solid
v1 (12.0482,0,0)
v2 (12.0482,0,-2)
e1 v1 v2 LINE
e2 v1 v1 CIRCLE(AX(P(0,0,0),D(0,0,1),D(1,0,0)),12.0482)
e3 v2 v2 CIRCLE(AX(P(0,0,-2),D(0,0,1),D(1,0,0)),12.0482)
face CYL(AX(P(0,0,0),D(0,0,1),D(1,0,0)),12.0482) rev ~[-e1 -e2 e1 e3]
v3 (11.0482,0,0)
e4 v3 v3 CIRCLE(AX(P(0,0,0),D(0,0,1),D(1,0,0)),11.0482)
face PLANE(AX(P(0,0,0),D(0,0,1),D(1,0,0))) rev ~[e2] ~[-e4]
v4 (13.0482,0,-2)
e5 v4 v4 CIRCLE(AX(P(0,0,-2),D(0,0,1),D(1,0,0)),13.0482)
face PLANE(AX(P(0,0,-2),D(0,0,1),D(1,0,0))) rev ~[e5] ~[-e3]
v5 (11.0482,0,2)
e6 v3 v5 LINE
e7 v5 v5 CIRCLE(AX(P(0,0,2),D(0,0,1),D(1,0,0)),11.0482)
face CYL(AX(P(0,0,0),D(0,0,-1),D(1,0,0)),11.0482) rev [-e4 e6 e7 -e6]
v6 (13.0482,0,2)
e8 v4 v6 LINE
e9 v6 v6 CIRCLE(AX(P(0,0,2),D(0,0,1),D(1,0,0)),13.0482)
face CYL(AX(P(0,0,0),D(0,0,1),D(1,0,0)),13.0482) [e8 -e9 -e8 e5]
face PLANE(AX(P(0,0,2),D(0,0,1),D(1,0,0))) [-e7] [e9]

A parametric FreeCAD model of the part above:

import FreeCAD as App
import Part
import Sketcher

V = App.Vector

doc = App.newDocument("Part")
body = doc.addObject("PartDesign::Body", "Body")

# Sketch on XY plane
sketch1 = doc.addObject("Sketcher::SketchObject", "Sketch")
body.addObject(sketch1)
sketch1.AttachmentSupport = (doc.XY_Plane, [""])
sketch1.MapMode = "FlatFace"
sketch1.addGeometry([
    Part.Circle(V(0, 0, 0), V(0, 0, 1), 13),
    Part.Circle(V(0, 0, 0), V(0, 0, 1), 12),
], False)
sketch1.addConstraint([
    Sketcher.Constraint("Coincident", 0, 3, -1, 1),
    Sketcher.Constraint("Coincident", 1, 3, -1, 1),
    Sketcher.Constraint("Diameter", 0, 26.0964),
    Sketcher.Constraint("Diameter", 1, 24.0964),
])
pad1 = doc.addObject("PartDesign::Pad", "Pad")
body.addObject(pad1)
pad1.Profile = sketch1
pad1.Length = 2
pad1.Reversed = True

# Sketch on XY plane
sketch2 = doc.addObject("Sketcher::SketchObject", "Sketch001")
body.addObject(sketch2)
sketch2.AttachmentSupport = (doc.XY_Plane, [""])
sketch2.MapMode = "FlatFace"
sketch2.addGeometry([
    Part.Circle(V(0, 0, 0), V(0, 0, 1), 13),
    Part.Circle(V(0, 0, 0), V(0, 0, 1), 11),
], False)
sketch2.addConstraint([
    Sketcher.Constraint("Coincident", 0, 3, -1, 1),
    Sketcher.Constraint("Coincident", 1, 3, -1, 1),
    Sketcher.Constraint("Diameter", 0, 26.0964),
    Sketcher.Constraint("Diameter", 1, 22.0964),
])
pad2 = doc.addObject("PartDesign::Pad", "Pad001")
body.addObject(pad2)
pad2.Profile = sketch2
pad2.Length = 2

doc.recompute()
